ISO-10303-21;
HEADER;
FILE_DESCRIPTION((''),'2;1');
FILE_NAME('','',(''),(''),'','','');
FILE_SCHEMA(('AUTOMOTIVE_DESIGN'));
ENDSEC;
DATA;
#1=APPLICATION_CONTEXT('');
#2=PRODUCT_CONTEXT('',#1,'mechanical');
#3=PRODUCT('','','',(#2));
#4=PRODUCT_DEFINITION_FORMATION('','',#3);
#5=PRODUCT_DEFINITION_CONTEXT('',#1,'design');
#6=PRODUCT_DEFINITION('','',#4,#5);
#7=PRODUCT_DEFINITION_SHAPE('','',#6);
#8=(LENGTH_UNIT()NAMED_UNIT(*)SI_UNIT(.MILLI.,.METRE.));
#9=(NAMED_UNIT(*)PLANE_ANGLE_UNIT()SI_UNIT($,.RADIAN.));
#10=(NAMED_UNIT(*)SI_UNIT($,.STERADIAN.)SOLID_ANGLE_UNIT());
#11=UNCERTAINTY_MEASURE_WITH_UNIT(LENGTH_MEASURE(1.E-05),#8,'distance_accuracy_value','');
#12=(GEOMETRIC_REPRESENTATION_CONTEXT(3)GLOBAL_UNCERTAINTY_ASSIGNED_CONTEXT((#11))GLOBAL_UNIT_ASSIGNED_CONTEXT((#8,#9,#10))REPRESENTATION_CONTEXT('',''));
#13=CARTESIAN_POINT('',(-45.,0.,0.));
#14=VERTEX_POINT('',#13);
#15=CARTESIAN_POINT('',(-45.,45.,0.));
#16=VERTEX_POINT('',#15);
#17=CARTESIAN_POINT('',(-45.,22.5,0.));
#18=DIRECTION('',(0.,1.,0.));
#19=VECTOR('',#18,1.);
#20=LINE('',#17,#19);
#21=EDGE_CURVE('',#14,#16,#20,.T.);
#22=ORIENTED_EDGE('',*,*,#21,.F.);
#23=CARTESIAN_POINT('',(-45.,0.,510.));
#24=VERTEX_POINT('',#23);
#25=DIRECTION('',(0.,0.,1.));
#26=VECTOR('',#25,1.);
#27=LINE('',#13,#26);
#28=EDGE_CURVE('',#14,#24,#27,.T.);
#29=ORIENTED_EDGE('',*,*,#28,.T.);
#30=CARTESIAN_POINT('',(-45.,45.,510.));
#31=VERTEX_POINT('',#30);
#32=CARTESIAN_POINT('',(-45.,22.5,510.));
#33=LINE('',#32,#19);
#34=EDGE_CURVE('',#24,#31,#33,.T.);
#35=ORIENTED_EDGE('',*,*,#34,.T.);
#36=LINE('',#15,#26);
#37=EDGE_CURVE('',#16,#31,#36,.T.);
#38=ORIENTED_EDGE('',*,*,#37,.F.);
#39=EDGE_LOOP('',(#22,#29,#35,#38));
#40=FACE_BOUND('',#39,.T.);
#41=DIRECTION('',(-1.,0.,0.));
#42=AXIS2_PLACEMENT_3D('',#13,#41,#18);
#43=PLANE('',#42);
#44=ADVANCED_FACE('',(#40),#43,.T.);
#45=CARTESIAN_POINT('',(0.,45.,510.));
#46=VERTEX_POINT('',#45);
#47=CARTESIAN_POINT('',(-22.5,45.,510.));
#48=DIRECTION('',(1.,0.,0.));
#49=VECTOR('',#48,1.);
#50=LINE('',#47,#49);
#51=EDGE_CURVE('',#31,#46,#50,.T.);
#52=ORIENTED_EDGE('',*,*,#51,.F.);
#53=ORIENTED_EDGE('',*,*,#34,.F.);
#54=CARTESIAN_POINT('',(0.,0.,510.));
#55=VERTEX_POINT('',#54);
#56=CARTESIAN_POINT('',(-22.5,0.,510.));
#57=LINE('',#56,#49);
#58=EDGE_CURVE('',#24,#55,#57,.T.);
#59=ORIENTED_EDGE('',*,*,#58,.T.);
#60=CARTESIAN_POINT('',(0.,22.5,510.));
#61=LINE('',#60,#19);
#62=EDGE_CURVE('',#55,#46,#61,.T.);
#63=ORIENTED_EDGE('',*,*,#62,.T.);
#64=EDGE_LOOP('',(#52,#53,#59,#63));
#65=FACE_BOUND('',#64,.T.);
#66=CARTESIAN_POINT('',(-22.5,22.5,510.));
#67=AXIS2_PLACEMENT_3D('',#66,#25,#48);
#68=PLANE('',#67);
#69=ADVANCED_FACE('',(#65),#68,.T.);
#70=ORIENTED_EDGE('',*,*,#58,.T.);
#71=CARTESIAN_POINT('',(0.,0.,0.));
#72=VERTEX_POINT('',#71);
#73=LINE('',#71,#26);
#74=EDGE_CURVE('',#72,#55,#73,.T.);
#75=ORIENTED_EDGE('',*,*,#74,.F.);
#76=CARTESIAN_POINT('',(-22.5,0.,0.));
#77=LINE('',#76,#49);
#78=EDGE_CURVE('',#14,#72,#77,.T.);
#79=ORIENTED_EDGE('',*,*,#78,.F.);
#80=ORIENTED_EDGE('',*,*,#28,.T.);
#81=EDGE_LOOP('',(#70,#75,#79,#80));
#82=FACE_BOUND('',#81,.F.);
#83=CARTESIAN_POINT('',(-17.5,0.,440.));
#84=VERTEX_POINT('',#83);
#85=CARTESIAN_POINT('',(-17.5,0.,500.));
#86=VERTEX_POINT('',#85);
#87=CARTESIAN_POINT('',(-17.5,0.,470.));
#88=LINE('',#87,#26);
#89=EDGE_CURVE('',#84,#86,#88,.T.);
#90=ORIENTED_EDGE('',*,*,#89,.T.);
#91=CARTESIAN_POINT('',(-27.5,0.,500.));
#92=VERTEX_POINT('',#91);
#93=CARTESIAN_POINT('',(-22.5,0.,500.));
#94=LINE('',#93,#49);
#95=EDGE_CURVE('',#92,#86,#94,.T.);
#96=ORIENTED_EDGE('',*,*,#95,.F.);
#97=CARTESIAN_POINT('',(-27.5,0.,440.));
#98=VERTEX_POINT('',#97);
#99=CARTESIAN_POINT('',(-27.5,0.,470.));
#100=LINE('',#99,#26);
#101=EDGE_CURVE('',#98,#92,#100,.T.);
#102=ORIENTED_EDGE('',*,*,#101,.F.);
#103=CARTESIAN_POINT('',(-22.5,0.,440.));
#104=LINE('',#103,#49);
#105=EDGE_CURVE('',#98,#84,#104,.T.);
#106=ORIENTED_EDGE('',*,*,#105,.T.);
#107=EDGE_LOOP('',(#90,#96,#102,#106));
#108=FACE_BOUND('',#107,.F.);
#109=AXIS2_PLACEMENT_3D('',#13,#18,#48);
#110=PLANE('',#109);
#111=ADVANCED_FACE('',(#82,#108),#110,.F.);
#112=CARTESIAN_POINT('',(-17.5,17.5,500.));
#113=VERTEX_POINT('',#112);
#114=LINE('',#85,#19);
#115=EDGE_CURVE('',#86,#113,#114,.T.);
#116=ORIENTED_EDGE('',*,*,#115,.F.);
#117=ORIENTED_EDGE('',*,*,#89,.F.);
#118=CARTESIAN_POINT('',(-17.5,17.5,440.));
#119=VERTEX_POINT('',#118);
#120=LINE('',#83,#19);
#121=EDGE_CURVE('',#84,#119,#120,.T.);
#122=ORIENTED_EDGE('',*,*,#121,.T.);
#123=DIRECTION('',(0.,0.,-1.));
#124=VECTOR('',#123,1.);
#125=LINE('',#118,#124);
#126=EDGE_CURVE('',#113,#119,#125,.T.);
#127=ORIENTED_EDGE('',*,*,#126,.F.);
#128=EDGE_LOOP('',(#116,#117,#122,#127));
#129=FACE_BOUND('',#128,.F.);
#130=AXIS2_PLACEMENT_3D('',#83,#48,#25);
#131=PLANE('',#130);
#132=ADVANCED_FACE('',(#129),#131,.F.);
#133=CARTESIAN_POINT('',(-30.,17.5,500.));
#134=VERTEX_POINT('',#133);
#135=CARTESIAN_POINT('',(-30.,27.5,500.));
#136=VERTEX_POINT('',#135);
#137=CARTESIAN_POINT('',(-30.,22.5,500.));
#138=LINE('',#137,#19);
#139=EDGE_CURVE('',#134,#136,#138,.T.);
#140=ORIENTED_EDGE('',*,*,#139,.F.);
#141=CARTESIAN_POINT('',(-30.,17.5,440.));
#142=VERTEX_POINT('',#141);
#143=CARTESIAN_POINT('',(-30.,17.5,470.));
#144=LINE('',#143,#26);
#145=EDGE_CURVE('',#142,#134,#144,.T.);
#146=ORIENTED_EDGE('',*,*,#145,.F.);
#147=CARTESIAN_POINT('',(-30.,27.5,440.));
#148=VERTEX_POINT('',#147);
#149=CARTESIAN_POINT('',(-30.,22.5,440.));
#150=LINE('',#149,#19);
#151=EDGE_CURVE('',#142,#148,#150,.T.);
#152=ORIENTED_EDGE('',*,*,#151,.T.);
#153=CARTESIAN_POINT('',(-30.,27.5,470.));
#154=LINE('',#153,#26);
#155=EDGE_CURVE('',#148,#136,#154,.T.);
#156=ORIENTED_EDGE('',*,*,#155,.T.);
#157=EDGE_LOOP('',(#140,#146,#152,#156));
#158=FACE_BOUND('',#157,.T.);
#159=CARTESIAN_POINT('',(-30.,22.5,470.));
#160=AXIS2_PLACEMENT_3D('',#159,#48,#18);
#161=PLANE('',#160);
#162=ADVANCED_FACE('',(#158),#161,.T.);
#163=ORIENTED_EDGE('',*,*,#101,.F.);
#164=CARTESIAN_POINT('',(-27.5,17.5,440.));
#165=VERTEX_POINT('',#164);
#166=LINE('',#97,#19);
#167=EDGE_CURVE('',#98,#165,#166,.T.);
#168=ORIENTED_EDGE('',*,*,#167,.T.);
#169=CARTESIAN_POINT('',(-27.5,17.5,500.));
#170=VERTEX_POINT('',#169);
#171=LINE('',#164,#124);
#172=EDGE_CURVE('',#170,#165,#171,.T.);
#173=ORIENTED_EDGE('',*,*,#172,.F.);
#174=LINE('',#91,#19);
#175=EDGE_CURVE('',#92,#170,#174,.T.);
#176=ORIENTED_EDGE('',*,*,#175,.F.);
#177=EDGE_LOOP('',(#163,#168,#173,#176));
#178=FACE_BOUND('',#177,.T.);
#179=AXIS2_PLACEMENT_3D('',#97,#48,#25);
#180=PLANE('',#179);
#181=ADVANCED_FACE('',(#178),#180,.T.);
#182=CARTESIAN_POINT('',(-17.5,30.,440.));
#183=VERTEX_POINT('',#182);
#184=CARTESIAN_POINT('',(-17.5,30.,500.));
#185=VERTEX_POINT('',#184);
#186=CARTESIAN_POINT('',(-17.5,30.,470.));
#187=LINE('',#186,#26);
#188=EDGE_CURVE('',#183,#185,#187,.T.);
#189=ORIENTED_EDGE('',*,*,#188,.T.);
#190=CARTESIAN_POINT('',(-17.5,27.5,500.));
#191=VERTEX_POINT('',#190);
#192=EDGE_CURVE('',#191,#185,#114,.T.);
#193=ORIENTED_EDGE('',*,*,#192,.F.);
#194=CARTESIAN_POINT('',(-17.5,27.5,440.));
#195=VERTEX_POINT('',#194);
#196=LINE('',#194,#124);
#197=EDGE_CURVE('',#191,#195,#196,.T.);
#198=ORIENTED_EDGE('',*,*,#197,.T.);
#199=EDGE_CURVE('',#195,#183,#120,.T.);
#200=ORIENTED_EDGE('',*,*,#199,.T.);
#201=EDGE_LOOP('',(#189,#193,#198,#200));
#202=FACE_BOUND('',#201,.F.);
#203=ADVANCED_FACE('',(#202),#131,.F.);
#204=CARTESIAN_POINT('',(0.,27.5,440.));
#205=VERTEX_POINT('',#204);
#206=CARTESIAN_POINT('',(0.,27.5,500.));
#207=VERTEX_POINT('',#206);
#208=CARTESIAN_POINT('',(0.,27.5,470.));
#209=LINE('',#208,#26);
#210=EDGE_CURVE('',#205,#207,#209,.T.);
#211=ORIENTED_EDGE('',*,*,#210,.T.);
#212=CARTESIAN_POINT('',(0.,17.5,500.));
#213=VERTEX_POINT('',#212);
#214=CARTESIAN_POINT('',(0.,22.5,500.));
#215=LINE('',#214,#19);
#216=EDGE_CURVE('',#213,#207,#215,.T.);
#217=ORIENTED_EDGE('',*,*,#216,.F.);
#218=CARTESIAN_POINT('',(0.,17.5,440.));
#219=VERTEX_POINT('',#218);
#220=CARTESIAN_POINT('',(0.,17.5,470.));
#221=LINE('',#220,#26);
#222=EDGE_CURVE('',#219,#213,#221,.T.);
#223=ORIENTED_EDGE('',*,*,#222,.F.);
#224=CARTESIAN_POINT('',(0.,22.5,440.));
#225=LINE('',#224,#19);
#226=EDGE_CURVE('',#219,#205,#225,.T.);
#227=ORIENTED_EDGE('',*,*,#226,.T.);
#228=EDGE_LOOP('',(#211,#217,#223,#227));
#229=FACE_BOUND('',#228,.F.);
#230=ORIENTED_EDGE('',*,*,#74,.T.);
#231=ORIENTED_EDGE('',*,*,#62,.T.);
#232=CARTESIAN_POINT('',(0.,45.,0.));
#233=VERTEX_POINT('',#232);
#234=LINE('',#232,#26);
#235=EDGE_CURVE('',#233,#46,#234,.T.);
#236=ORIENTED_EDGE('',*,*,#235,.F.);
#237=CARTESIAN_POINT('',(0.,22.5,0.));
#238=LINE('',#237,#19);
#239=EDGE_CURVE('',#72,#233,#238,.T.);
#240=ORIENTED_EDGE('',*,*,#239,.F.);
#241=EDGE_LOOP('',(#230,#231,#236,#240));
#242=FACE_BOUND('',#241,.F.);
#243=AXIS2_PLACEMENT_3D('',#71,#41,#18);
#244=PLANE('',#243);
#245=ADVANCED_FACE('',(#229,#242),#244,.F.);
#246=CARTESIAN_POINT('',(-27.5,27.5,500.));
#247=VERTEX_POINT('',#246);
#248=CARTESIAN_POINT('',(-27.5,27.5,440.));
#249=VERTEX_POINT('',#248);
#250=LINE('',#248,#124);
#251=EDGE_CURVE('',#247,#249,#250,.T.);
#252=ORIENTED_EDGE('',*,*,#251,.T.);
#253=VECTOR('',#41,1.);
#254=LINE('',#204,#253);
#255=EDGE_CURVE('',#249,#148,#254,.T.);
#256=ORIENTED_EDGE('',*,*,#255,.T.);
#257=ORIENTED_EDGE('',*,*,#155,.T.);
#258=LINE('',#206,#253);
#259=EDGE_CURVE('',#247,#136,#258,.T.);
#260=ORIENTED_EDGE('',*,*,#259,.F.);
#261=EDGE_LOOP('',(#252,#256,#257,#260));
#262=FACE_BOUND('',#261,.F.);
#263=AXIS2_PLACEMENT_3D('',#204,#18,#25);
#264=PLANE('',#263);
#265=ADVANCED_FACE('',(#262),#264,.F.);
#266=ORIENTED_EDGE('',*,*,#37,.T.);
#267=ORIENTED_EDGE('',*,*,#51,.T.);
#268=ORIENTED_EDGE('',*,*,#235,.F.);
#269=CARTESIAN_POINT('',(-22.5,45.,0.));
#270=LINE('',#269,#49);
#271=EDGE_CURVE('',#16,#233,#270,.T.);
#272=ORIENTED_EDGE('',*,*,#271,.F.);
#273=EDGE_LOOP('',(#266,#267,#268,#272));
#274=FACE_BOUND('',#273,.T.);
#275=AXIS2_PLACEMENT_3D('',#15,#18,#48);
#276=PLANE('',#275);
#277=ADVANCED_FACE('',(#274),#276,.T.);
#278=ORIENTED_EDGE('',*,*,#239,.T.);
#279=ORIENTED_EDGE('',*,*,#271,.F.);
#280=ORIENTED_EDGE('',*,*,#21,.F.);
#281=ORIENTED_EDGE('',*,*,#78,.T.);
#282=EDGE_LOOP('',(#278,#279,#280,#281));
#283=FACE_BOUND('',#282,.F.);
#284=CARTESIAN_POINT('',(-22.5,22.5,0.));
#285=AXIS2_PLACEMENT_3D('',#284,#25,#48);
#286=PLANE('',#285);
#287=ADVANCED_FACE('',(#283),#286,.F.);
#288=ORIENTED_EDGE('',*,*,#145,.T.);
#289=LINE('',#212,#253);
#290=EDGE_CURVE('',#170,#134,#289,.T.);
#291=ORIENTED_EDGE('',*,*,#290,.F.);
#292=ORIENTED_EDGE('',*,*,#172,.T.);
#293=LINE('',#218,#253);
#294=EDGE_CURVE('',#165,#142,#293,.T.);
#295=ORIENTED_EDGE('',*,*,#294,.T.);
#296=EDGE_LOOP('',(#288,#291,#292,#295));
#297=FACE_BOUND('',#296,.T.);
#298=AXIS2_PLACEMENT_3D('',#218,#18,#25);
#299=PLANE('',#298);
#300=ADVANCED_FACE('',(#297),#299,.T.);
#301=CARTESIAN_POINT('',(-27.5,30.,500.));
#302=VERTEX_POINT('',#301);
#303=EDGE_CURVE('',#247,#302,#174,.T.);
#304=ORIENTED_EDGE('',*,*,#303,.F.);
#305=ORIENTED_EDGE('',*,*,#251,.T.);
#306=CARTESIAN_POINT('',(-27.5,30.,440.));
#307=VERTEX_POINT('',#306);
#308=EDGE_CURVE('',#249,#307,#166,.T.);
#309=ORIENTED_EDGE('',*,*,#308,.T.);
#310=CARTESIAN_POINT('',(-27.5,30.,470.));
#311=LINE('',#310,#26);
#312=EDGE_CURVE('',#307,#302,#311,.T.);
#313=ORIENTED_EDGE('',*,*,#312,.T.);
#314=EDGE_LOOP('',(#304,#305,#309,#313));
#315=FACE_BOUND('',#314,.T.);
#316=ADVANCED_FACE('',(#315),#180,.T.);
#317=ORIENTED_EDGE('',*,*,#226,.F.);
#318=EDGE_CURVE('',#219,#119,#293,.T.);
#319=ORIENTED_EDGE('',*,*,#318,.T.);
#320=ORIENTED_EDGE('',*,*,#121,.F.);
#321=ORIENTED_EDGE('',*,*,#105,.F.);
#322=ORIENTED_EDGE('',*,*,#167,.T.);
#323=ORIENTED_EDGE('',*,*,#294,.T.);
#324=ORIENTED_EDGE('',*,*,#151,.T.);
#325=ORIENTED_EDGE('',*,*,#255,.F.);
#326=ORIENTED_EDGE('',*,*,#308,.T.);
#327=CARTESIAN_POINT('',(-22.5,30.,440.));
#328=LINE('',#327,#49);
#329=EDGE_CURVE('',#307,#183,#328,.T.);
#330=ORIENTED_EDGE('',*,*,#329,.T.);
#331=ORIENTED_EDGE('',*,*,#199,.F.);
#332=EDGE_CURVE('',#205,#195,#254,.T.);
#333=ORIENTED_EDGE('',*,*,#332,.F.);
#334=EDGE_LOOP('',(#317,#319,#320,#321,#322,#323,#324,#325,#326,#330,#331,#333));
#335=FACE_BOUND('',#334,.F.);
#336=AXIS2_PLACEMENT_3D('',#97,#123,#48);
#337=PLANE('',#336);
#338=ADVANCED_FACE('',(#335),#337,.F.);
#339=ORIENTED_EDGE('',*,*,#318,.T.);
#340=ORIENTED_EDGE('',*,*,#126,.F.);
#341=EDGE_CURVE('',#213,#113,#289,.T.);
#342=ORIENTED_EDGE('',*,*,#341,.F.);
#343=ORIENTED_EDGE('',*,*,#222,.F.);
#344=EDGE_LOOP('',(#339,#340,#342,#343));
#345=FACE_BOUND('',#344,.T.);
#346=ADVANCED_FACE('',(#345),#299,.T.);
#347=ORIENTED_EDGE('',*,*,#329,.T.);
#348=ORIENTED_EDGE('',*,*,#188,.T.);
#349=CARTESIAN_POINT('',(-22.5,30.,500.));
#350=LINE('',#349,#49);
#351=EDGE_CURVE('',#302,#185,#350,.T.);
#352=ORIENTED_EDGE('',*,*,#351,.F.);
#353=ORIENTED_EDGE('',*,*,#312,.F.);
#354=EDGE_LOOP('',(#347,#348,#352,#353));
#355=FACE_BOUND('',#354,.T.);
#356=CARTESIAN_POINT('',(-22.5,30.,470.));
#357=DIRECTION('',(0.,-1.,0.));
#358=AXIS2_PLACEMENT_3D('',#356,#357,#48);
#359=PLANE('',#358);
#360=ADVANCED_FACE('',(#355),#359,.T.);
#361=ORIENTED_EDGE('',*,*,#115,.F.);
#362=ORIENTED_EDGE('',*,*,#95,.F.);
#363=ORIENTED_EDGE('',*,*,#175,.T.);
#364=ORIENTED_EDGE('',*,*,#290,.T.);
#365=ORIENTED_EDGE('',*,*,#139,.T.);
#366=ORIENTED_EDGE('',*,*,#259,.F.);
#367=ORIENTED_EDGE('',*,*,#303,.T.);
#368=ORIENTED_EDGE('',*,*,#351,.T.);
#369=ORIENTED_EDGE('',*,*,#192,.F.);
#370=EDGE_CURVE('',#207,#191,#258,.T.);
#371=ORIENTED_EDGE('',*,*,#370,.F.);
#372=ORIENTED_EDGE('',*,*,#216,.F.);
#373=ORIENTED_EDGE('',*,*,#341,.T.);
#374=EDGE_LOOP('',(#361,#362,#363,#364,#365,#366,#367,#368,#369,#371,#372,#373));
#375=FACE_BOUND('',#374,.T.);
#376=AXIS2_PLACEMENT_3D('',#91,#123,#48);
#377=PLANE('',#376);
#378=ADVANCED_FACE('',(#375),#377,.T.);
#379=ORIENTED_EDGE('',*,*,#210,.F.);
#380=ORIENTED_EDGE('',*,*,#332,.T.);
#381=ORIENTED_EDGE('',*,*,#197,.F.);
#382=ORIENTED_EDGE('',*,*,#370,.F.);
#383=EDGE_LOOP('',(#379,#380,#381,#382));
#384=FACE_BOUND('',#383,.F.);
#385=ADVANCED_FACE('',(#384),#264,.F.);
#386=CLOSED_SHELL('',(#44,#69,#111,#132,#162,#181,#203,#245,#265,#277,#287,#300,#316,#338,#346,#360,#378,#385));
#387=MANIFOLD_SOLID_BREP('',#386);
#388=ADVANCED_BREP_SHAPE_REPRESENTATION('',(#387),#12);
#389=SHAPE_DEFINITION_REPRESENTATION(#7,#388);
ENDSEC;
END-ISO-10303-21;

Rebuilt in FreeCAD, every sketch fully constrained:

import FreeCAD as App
import Part
import Sketcher

V = App.Vector


def add_polygon(sketch, points):
    """Adds a closed chain of lines whose ends are joined by coincident constraints."""
    first, n = sketch.GeometryCount, len(points)
    for a, b in zip(points, points[1:] + points[:1]):
        sketch.addGeometry(Part.LineSegment(App.Vector(*a, 0), App.Vector(*b, 0)), False)
    for i in range(n):
        sketch.addConstraint(Sketcher.Constraint("Coincident", first + i, 2, first + (i + 1) % n, 1))

doc = App.newDocument("Part")
body = doc.addObject("PartDesign::Body", "Body")

# Sketch on XY plane
sketch1 = body.newObject("Sketcher::SketchObject", "Sketch")
sketch1.AttachmentSupport = (doc.getObject("XY_Plane"), [""])
sketch1.MapMode = "FlatFace"
add_polygon(sketch1, [(-45, 45), (-45, 0), (0, 0), (0, 45)])  # lines 0-3
sketch1.addConstraint(Sketcher.Constraint("Vertical", 0))
sketch1.addConstraint(Sketcher.Constraint("Horizontal", 1))
sketch1.addConstraint(Sketcher.Constraint("Vertical", 2))
sketch1.addConstraint(Sketcher.Constraint("Horizontal", 3))
sketch1.addConstraint(Sketcher.Constraint("Coincident", 1, 2, -1, 1))
sketch1.addConstraint(Sketcher.Constraint("Equal", 3, 0))
sketch1.addConstraint(Sketcher.Constraint("DistanceX", 1, 1, 1, 2, 45.0))
pad1 = body.newObject("PartDesign::Pad", "Pad")
pad1.Profile = sketch1
pad1.Length = 510

# Sketch on YZ plane
sketch2 = body.newObject("Sketcher::SketchObject", "Sketch001")
sketch2.AttachmentSupport = (doc.getObject("YZ_Plane"), [""])
sketch2.MapMode = "FlatFace"
add_polygon(sketch2, [(18, 500), (18, 440), (28, 440), (28, 500)])  # lines 0-3
sketch2.addConstraint(Sketcher.Constraint("Vertical", 0))
sketch2.addConstraint(Sketcher.Constraint("Horizontal", 1))
sketch2.addConstraint(Sketcher.Constraint("Vertical", 2))
sketch2.addConstraint(Sketcher.Constraint("Horizontal", 3))
sketch2.addConstraint(Sketcher.Constraint("DistanceX", 1, 1, 1, 2, 10.0))
sketch2.addConstraint(Sketcher.Constraint("DistanceY", 0, 2, 0, 1, 60.0))
sketch2.addConstraint(Sketcher.Constraint("DistanceY", -1, 1, 0, 2, 440.0))
sketch2.addConstraint(Sketcher.Constraint("DistanceX", -1, 1, 0, 2, 17.5))
pocket1 = body.newObject("PartDesign::Pocket", "Pocket")
pocket1.Profile = sketch2
pocket1.Length = 30

# Sketch on XZ plane
sketch3 = body.newObject("Sketcher::SketchObject", "Sketch002")
sketch3.AttachmentSupport = (doc.getObject("XZ_Plane"), [""])
sketch3.MapMode = "FlatFace"
add_polygon(sketch3, [(-28, 500), (-28, 440), (-18, 440), (-18, 500)])  # lines 0-3
sketch3.addConstraint(Sketcher.Constraint("Vertical", 0))
sketch3.addConstraint(Sketcher.Constraint("Horizontal", 1))
sketch3.addConstraint(Sketcher.Constraint("Vertical", 2))
sketch3.addConstraint(Sketcher.Constraint("Horizontal", 3))
sketch3.addConstraint(Sketcher.Constraint("DistanceX", 1, 1, 1, 2, 10.0))
sketch3.addConstraint(Sketcher.Constraint("DistanceY", 0, 2, 0, 1, 60.0))
sketch3.addConstraint(Sketcher.Constraint("DistanceY", -1, 1, 0, 2, 440.0))
sketch3.addConstraint(Sketcher.Constraint("DistanceX", 0, 2, -1, 1, 27.5))
pocket2 = body.newObject("PartDesign::Pocket", "Pocket001")
pocket2.Profile = sketch3
pocket2.Length = 30

doc.recompute()
